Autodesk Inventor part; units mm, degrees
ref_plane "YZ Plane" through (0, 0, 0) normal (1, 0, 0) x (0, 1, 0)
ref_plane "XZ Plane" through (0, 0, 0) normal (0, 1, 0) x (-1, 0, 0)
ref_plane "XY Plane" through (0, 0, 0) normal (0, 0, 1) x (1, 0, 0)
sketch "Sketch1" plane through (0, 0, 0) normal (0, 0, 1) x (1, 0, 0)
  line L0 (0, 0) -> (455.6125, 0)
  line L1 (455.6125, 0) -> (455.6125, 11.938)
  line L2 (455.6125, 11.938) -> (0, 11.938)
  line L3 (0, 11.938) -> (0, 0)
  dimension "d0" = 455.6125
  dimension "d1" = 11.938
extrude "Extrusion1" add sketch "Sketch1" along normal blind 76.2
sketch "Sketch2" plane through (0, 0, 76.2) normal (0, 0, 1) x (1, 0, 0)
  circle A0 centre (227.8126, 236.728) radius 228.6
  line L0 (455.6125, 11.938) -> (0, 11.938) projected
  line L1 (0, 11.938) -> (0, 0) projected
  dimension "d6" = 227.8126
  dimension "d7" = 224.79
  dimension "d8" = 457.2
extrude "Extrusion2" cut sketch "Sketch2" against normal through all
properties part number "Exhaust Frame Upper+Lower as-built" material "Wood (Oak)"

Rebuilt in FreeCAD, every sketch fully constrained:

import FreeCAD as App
import Part
import Sketcher
Q = App.Units.Quantity


def add_polygon(sketch, points):
    """Adds a closed chain of lines whose ends are joined by coincident constraints."""
    first, n = sketch.GeometryCount, len(points)
    for a, b in zip(points, points[1:] + points[:1]):
        sketch.addGeometry(Part.LineSegment(App.Vector(*a, 0), App.Vector(*b, 0)), False)
    for i in range(n):
        sketch.addConstraint(Sketcher.Constraint("Coincident", first + i, 2, first + (i + 1) % n, 1))

doc = App.newDocument("Part")
body = doc.addObject("PartDesign::Body", "Body")

sketch1 = body.newObject("Sketcher::SketchObject", "Sketch")
sketch1.AttachmentSupport = (doc.getObject("XY_Plane"), [""])
sketch1.MapMode = "FlatFace"
add_polygon(sketch1, [(0, 12), (0, 0), (456, 0), (456, 12)])
sketch1.addConstraint(Sketcher.Constraint("Vertical", 0))
sketch1.addConstraint(Sketcher.Constraint("Horizontal", 1))
sketch1.addConstraint(Sketcher.Constraint("Vertical", 2))
sketch1.addConstraint(Sketcher.Constraint("Horizontal", 3))
sketch1.addConstraint(Sketcher.Constraint("Coincident", 0, 2, -1, 1))
sketch1.addConstraint(Sketcher.Constraint("DistanceY", 0, 2, 0, 1, Q("0.47 in")))
sketch1.addConstraint(Sketcher.Constraint("DistanceX", 1, 1, 1, 2, Q("17.9375 in")))
pad1 = body.newObject("PartDesign::Pad", "Pad")
pad1.Profile = sketch1
pad1.Length = Q("3 in")

sketch2 = body.newObject("Sketcher::SketchObject", "Sketch001")
sketch2.AttachmentSupport = (doc.getObject("XY_Plane"), [""])
sketch2.MapMode = "FlatFace"
sketch2.AttachmentOffset = App.Placement(App.Vector(0, 0, 3 * 25.4), App.Rotation())
sketch2.addGeometry(Part.Circle(App.Vector(228, 237, 0), App.Vector(0, 0, 1), 229), False)
sketch2.addConstraint(Sketcher.Constraint("Diameter", 0, Q("18 in")))
sketch2.addConstraint(Sketcher.Constraint("DistanceX", -1, 1, 0, 3, Q("8.969 in")))
sketch2.addConstraint(Sketcher.Constraint("DistanceY", -1, 1, 0, 3, Q("9.32 in")))
pocket1 = body.newObject("PartDesign::Pocket", "Pocket")
pocket1.Profile = sketch2
pocket1.Type = "ThroughAll"

doc.recompute()
